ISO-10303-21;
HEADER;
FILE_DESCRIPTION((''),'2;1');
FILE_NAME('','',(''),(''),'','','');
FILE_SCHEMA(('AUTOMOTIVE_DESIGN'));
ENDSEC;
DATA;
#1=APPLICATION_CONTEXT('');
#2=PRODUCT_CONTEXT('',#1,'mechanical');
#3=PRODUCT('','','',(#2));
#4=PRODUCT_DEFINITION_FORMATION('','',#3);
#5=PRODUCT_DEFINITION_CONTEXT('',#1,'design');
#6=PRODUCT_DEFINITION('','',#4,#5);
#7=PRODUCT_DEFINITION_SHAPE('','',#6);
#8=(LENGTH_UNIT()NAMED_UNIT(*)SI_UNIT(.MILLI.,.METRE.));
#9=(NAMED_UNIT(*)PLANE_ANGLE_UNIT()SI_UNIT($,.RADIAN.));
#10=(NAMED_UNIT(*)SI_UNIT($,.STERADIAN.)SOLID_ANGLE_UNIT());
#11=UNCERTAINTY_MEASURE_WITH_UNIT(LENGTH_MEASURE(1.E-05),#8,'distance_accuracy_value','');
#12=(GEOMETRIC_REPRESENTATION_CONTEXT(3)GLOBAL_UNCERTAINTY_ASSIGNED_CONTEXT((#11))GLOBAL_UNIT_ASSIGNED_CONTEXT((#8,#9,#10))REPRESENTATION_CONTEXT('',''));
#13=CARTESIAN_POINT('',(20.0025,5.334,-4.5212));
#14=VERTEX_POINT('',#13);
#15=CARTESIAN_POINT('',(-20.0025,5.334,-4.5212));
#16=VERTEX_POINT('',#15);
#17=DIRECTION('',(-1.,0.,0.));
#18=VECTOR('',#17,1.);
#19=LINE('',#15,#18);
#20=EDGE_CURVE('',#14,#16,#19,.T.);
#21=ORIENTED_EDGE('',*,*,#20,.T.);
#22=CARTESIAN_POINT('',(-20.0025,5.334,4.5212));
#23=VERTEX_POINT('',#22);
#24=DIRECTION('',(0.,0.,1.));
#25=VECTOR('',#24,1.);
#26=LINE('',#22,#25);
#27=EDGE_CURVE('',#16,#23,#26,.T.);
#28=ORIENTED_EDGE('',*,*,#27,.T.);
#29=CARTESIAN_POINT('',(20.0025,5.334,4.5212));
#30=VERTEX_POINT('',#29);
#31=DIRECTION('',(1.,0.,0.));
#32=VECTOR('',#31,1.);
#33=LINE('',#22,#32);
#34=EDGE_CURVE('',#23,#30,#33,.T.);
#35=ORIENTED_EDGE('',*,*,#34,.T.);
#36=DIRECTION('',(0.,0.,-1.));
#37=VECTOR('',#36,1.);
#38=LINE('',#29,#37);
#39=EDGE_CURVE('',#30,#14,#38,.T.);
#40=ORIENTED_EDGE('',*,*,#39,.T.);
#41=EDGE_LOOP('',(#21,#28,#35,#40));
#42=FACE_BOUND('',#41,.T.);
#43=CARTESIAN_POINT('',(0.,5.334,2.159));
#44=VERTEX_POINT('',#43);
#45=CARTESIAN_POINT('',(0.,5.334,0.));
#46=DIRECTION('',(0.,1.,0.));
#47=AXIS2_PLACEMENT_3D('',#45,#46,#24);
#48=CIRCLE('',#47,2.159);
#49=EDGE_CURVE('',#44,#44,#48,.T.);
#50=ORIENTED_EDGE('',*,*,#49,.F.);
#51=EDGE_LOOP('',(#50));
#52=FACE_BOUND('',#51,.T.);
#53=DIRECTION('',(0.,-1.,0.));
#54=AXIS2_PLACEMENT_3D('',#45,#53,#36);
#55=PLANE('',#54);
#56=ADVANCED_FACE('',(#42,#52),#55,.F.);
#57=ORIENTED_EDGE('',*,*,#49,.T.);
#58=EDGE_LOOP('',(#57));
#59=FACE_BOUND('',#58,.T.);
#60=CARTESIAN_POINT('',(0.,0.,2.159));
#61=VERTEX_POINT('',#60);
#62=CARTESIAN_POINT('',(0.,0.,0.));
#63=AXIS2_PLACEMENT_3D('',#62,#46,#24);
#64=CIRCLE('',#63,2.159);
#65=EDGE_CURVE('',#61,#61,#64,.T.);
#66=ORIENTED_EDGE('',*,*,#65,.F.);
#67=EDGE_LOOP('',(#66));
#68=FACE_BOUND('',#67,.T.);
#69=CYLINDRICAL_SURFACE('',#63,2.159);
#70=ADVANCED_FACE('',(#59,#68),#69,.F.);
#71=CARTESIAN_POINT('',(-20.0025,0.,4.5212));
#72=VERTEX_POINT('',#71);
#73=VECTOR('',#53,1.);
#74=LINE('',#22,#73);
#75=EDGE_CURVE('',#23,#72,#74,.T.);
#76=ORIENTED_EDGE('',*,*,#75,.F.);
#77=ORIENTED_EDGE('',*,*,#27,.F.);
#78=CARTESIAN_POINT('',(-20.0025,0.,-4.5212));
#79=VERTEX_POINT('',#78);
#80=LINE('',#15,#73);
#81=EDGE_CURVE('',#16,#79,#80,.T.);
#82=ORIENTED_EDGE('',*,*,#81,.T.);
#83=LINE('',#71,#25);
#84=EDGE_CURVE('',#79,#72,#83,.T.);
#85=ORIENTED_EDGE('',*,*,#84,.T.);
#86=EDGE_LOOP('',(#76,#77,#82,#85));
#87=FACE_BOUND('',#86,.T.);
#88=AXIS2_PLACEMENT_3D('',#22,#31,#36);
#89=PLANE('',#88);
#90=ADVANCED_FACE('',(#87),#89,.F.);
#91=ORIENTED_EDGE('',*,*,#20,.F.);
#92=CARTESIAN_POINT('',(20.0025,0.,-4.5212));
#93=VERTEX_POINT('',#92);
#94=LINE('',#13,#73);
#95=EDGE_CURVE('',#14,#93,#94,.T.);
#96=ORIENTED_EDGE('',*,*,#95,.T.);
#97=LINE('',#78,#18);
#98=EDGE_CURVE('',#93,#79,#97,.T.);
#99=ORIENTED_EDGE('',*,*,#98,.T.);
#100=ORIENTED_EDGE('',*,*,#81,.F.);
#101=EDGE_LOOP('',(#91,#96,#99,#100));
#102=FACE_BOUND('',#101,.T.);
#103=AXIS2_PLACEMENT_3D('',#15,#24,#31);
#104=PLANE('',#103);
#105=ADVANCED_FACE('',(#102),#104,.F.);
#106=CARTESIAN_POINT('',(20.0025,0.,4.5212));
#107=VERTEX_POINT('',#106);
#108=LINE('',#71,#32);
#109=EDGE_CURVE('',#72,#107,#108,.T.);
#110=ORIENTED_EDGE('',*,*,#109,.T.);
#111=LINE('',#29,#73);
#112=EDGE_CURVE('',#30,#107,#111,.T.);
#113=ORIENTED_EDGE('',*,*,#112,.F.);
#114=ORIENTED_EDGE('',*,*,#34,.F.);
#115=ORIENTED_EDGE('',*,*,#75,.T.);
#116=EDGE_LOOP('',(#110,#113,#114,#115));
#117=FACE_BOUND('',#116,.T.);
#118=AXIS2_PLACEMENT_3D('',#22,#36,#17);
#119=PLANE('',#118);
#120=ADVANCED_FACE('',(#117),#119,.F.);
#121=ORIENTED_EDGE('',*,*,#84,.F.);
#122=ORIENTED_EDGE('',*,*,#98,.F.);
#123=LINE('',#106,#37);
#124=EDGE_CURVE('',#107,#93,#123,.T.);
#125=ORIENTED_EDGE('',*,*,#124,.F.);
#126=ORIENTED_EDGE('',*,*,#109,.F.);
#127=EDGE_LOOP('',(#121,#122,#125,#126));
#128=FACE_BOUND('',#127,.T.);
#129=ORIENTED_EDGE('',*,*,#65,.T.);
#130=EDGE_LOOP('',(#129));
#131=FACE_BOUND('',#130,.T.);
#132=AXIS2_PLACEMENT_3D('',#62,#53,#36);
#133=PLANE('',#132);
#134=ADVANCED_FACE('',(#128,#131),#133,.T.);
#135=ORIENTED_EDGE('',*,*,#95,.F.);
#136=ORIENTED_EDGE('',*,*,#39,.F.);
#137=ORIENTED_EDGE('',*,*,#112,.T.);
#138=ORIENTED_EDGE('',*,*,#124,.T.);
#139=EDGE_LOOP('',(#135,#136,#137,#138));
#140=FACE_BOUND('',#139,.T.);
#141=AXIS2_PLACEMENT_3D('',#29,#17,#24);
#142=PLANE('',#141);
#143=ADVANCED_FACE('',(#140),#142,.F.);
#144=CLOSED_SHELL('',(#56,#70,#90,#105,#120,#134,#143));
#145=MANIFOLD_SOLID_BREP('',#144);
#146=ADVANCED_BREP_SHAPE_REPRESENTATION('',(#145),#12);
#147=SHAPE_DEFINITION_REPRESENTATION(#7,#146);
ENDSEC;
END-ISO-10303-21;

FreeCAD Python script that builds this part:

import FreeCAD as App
import Part
import Sketcher

V = App.Vector
Q = App.Units.Quantity


def add_polygon(sketch, points):
    """Adds a closed chain of lines whose ends are joined by coincident constraints."""
    first, n = sketch.GeometryCount, len(points)
    for a, b in zip(points, points[1:] + points[:1]):
        sketch.addGeometry(Part.LineSegment(App.Vector(*a, 0), App.Vector(*b, 0)), False)
    for i in range(n):
        sketch.addConstraint(Sketcher.Constraint("Coincident", first + i, 2, first + (i + 1) % n, 1))

doc = App.newDocument("Part")
body = doc.addObject("PartDesign::Body", "Body")

sketch1 = doc.addObject("Sketcher::SketchObject", "Sketch")
body.addObject(sketch1)
sketch1.AttachmentSupport = (doc.XZ_Plane, [""])
sketch1.MapMode = "FlatFace"
add_polygon(sketch1, [(-20, -5), (-20, 5), (20, 5), (20, -5)])
sketch1.addConstraint(Sketcher.Constraint("Vertical", 0))
sketch1.addConstraint(Sketcher.Constraint("Horizontal", 1))
sketch1.addConstraint(Sketcher.Constraint("Vertical", 2))
sketch1.addConstraint(Sketcher.Constraint("Horizontal", 3))
sketch1.addConstraint(Sketcher.Constraint("Symmetric", 0, 2, 2, 2, -1, 1))
sketch1.addConstraint(Sketcher.Constraint("DistanceX", 1, 1, 1, 2, Q("1.575 in")))
sketch1.addConstraint(Sketcher.Constraint("DistanceY", 0, 1, 0, 2, Q("0.356 in")))
pad1 = doc.addObject("PartDesign::Pad", "Pad")
body.addObject(pad1)
pad1.Profile = sketch1
pad1.Length = Q("0.21 in")
pad1.Reversed = True

sketch2 = doc.addObject("Sketcher::SketchObject", "Sketch001")
body.addObject(sketch2)
sketch2.AttachmentSupport = (doc.XZ_Plane, [""])
sketch2.MapMode = "FlatFace"
sketch2.AttachmentOffset = App.Placement(V(0, 0, -0.21 * 25.4), App.Rotation())
sketch2.addGeometry(Part.Circle(V(0, 0, 0), V(0, 0, 1), 2.2), False)
sketch2.addConstraint(Sketcher.Constraint("Coincident", 0, 3, -1, 1))
sketch2.addConstraint(Sketcher.Constraint("Diameter", 0, Q("0.17 in")))
pocket1 = doc.addObject("PartDesign::Pocket", "Pocket")
body.addObject(pocket1)
pocket1.Profile = sketch2
pocket1.Type = "ThroughAll"
pocket1.Reversed = True

doc.recompute()
